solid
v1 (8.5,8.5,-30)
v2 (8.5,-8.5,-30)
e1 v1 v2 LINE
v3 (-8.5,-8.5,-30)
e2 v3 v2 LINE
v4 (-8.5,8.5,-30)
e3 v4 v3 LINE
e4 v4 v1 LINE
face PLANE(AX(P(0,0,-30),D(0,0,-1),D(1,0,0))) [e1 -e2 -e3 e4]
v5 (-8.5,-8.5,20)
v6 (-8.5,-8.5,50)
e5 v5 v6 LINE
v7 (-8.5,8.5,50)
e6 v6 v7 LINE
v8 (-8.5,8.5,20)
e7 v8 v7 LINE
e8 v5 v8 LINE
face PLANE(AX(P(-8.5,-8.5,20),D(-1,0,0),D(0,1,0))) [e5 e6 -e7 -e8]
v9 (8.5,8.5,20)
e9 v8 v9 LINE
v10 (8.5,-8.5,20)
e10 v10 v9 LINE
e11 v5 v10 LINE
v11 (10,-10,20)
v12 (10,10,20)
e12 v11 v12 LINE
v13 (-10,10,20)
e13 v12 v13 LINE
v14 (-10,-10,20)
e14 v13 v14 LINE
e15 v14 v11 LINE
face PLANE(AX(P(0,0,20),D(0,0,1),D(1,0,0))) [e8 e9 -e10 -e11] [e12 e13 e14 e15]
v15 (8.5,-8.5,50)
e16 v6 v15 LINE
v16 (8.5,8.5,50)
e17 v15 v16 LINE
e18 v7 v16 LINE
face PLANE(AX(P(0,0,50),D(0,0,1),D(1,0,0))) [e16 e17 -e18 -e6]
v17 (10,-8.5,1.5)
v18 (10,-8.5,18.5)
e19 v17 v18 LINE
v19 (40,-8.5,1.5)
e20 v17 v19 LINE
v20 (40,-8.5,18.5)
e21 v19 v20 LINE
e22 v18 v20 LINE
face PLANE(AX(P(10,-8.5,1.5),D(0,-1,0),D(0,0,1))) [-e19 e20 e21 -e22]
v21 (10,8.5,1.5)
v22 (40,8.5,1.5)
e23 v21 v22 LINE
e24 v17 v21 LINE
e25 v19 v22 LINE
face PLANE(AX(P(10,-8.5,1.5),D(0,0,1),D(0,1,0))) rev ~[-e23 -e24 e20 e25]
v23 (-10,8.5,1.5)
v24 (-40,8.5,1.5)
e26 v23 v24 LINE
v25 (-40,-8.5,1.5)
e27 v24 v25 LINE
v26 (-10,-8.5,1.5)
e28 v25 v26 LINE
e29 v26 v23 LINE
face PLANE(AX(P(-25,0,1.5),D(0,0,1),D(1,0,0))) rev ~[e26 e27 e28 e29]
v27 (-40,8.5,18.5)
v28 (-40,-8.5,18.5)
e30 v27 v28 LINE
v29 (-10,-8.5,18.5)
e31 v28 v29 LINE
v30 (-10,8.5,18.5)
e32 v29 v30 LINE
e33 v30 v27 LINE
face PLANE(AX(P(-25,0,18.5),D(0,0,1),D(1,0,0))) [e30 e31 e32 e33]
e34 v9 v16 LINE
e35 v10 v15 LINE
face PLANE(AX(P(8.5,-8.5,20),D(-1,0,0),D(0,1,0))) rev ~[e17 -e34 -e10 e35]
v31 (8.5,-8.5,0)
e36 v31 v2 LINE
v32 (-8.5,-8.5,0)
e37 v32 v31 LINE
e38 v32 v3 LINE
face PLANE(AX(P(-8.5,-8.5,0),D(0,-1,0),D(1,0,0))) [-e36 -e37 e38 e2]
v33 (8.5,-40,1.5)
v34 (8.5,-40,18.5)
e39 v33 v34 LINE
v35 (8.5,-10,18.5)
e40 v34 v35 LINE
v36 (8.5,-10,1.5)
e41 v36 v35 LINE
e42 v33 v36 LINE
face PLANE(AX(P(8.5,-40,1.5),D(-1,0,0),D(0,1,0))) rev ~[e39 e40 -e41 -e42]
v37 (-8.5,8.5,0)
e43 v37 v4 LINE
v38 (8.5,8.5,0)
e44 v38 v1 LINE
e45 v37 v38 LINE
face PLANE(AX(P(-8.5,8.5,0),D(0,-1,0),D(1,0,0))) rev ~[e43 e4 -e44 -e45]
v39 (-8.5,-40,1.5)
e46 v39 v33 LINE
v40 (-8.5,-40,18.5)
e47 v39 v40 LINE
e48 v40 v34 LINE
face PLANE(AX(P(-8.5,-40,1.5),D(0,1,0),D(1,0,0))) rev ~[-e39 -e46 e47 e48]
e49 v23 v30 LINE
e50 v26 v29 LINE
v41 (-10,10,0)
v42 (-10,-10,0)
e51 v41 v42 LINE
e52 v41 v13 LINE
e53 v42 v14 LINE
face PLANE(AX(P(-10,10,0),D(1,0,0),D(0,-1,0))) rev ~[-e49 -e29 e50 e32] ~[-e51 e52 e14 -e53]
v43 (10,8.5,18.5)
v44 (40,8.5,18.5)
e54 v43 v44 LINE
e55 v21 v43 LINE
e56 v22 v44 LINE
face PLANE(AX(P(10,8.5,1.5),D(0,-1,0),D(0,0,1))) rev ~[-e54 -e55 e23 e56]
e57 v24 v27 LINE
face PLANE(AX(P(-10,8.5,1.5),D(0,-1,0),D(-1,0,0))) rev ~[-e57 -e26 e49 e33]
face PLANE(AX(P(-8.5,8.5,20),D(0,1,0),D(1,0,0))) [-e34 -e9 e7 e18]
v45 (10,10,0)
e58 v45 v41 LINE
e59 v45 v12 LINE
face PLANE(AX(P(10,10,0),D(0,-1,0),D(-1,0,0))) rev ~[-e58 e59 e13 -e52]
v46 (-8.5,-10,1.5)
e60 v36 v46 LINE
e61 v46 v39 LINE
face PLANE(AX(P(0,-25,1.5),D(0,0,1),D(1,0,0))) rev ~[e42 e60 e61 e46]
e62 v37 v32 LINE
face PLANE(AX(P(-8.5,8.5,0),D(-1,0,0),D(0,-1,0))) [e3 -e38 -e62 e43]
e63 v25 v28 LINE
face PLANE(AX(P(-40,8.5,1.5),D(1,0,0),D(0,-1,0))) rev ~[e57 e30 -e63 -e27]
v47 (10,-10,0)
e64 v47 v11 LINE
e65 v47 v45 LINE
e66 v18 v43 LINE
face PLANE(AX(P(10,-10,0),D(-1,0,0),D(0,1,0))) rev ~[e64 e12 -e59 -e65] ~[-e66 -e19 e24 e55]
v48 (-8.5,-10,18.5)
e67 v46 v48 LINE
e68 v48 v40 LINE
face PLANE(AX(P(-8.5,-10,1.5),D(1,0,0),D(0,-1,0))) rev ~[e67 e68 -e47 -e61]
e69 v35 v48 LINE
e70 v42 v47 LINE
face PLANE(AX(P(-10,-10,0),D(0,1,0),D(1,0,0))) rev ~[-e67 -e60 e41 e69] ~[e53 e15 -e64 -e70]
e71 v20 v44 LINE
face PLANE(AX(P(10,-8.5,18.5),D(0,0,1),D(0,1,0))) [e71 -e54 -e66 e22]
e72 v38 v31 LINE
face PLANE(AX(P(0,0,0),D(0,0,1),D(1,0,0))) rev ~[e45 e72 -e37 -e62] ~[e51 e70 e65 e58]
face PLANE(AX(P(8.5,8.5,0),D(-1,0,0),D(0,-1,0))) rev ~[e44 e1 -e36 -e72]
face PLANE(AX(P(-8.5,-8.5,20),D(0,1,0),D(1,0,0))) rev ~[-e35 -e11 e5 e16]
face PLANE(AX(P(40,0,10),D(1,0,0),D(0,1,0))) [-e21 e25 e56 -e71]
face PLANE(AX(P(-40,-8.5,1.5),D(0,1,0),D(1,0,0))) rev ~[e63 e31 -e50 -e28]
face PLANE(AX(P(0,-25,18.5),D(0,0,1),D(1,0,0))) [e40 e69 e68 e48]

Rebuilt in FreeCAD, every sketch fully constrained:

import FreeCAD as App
import Part
import Sketcher
Q = App.Units.Quantity

doc = App.newDocument("Part")
body = doc.addObject("PartDesign::Body", "Body")

# Sketch on XY plane
sketch1 = body.newObject("Sketcher::SketchObject", "Sketch")
sketch1.AttachmentSupport = (doc.getObject("XY_Plane"), [""])
sketch1.MapMode = "FlatFace"
sketch1.addGeometry(Part.LineSegment(App.Vector(10, -10, 0), App.Vector(10, 10, 0)), False)
sketch1.addGeometry(Part.LineSegment(App.Vector(10, 10, 0), App.Vector(-10, 10, 0)), False)
sketch1.addGeometry(Part.LineSegment(App.Vector(-10, 10, 0), App.Vector(-10, -10, 0)), False)
sketch1.addGeometry(Part.LineSegment(App.Vector(-10, -10, 0), App.Vector(10, -10, 0)), False)
sketch1.addConstraint(Sketcher.Constraint("Coincident", 0, 2, 1, 1))
sketch1.addConstraint(Sketcher.Constraint("Coincident", 1, 2, 2, 1))
sketch1.addConstraint(Sketcher.Constraint("Coincident", 2, 2, 3, 1))
sketch1.addConstraint(Sketcher.Constraint("Coincident", 3, 2, 0, 1))
sketch1.addConstraint(Sketcher.Constraint("Vertical", 0))
sketch1.addConstraint(Sketcher.Constraint("Horizontal", 1))
sketch1.addConstraint(Sketcher.Constraint("Vertical", 2))
sketch1.addConstraint(Sketcher.Constraint("Horizontal", 3))
sketch1.addConstraint(Sketcher.Constraint("Symmetric", 0, 2, 2, 2, -1, 1))
sketch1.addConstraint(Sketcher.Constraint("Equal", 3, 0))
sketch1.addConstraint(Sketcher.Constraint("DistanceX", 1, 2, 1, 1, Q("20 mm")))
pad1 = body.newObject("PartDesign::Pad", "Pad")
pad1.Profile = sketch1
pad1.Length = 20

# Sketch on XY plane
sketch2 = body.newObject("Sketcher::SketchObject", "Sketch001")
sketch2.AttachmentSupport = (doc.getObject("XY_Plane"), [""])
sketch2.MapMode = "FlatFace"
sketch2.AttachmentOffset = App.Placement(App.Vector(0, 0, 1.5), App.Rotation())
sketch2.addGeometry(Part.LineSegment(App.Vector(-10, 8, 0), App.Vector(-40, 8, 0)), False)
sketch2.addGeometry(Part.LineSegment(App.Vector(-40, 8, 0), App.Vector(-40, -8, 0)), False)
sketch2.addGeometry(Part.LineSegment(App.Vector(-40, -8, 0), App.Vector(-10, -8, 0)), False)
sketch2.addGeometry(Part.LineSegment(App.Vector(-10, -8, 0), App.Vector(-10, 8, 0)), False)
sketch2.addGeometry(Part.LineSegment(App.Vector(8, -40, 0), App.Vector(8, -10, 0)), False)
sketch2.addGeometry(Part.LineSegment(App.Vector(8, -10, 0), App.Vector(-8, -10, 0)), False)
sketch2.addGeometry(Part.LineSegment(App.Vector(-8, -10, 0), App.Vector(-8, -40, 0)), False)
sketch2.addGeometry(Part.LineSegment(App.Vector(-8, -40, 0), App.Vector(8, -40, 0)), False)
sketch2.addConstraint(Sketcher.Constraint("Coincident", 0, 2, 1, 1))
sketch2.addConstraint(Sketcher.Constraint("Coincident", 1, 2, 2, 1))
sketch2.addConstraint(Sketcher.Constraint("Coincident", 2, 2, 3, 1))
sketch2.addConstraint(Sketcher.Constraint("Coincident", 3, 2, 0, 1))
sketch2.addConstraint(Sketcher.Constraint("Coincident", 4, 2, 5, 1))
sketch2.addConstraint(Sketcher.Constraint("Coincident", 5, 2, 6, 1))
sketch2.addConstraint(Sketcher.Constraint("Coincident", 6, 2, 7, 1))
sketch2.addConstraint(Sketcher.Constraint("Coincident", 7, 2, 4, 1))
sketch2.addConstraint(Sketcher.Constraint("Horizontal", 0))
sketch2.addConstraint(Sketcher.Constraint("Vertical", 1))
sketch2.addConstraint(Sketcher.Constraint("Horizontal", 2))
sketch2.addConstraint(Sketcher.Constraint("Vertical", 3))
sketch2.addConstraint(Sketcher.Constraint("Vertical", 4))
sketch2.addConstraint(Sketcher.Constraint("Horizontal", 5))
sketch2.addConstraint(Sketcher.Constraint("Vertical", 6))
sketch2.addConstraint(Sketcher.Constraint("Horizontal", 7))
sketch2.addConstraint(Sketcher.Constraint("Equal", 7, 1))
sketch2.addConstraint(Sketcher.Constraint("Equal", 2, 4))
sketch2.addConstraint(Sketcher.Constraint("DistanceX", 0, 2, 0, 1, Q("30 mm")))
sketch2.addConstraint(Sketcher.Constraint("DistanceX", 5, 2, 5, 1, Q("17 mm")))
sketch2.addConstraint(Sketcher.Constraint("DistanceX", 0, 2, -1, 1, Q("40 mm")))
sketch2.addConstraint(Sketcher.Constraint("DistanceY", 4, 2, -1, 1, Q("10 mm")))
sketch2.addConstraint(Sketcher.Constraint("DistanceY", -1, 1, 0, 2, Q("8.5 mm")))
sketch2.addConstraint(Sketcher.Constraint("DistanceX", -1, 1, 4, 2, Q("8.5 mm")))
pad2 = body.newObject("PartDesign::Pad", "Pad001")
pad2.Profile = sketch2
pad2.Length = 17

# Sketch on XY plane
sketch3 = body.newObject("Sketcher::SketchObject", "Sketch002")
sketch3.AttachmentSupport = (doc.getObject("XY_Plane"), [""])
sketch3.MapMode = "FlatFace"
sketch3.AttachmentOffset = App.Placement(App.Vector(0, 0, 20), App.Rotation())
sketch3.addGeometry(Part.LineSegment(App.Vector(-8, 8, 0), App.Vector(-8, -8, 0)), False)
sketch3.addGeometry(Part.LineSegment(App.Vector(-8, -8, 0), App.Vector(8, -8, 0)), False)
sketch3.addGeometry(Part.LineSegment(App.Vector(8, -8, 0), App.Vector(8, 8, 0)), False)
sketch3.addGeometry(Part.LineSegment(App.Vector(8, 8, 0), App.Vector(-8, 8, 0)), False)
sketch3.addConstraint(Sketcher.Constraint("Coincident", 0, 2, 1, 1))
sketch3.addConstraint(Sketcher.Constraint("Coincident", 1, 2, 2, 1))
sketch3.addConstraint(Sketcher.Constraint("Coincident", 2, 2, 3, 1))
sketch3.addConstraint(Sketcher.Constraint("Coincident", 3, 2, 0, 1))
sketch3.addConstraint(Sketcher.Constraint("Vertical", 0))
sketch3.addConstraint(Sketcher.Constraint("Horizontal", 1))
sketch3.addConstraint(Sketcher.Constraint("Vertical", 2))
sketch3.addConstraint(Sketcher.Constraint("Horizontal", 3))
sketch3.addConstraint(Sketcher.Constraint("Symmetric", 0, 2, 2, 2, -1, 1))
sketch3.addConstraint(Sketcher.Constraint("Equal", 3, 0))
sketch3.addConstraint(Sketcher.Constraint("DistanceX", 1, 1, 1, 2, Q("17 mm")))
pad3 = body.newObject("PartDesign::Pad", "Pad002")
pad3.Profile = sketch3
pad3.Length = 30

# Sketch on XY plane
sketch4 = body.newObject("Sketcher::SketchObject", "Sketch003")
sketch4.AttachmentSupport = (doc.getObject("XY_Plane"), [""])
sketch4.MapMode = "FlatFace"
sketch4.addGeometry(Part.LineSegment(App.Vector(-8, -8, 0), App.Vector(-8, 8, 0)), False)
sketch4.addGeometry(Part.LineSegment(App.Vector(-8, 8, 0), App.Vector(8, 8, 0)), False)
sketch4.addGeometry(Part.LineSegment(App.Vector(8, 8, 0), App.Vector(8, -8, 0)), False)
sketch4.addGeometry(Part.LineSegment(App.Vector(8, -8, 0), App.Vector(-8, -8, 0)), False)
sketch4.addConstraint(Sketcher.Constraint("Coincident", 0, 2, 1, 1))
sketch4.addConstraint(Sketcher.Constraint("Coincident", 1, 2, 2, 1))
sketch4.addConstraint(Sketcher.Constraint("Coincident", 2, 2, 3, 1))
sketch4.addConstraint(Sketcher.Constraint("Coincident", 3, 2, 0, 1))
sketch4.addConstraint(Sketcher.Constraint("Vertical", 0))
sketch4.addConstraint(Sketcher.Constraint("Horizontal", 1))
sketch4.addConstraint(Sketcher.Constraint("Vertical", 2))
sketch4.addConstraint(Sketcher.Constraint("Horizontal", 3))
sketch4.addConstraint(Sketcher.Constraint("Symmetric", 0, 2, 2, 2, -1, 1))
sketch4.addConstraint(Sketcher.Constraint("Equal", 3, 0))
sketch4.addConstraint(Sketcher.Constraint("DistanceX", 1, 1, 1, 2, Q("17 mm")))
pad4 = body.newObject("PartDesign::Pad", "Pad003")
pad4.Profile = sketch4
pad4.Length = 30
pad4.Reversed = True

# Sketch on YZ plane
sketch5 = body.newObject("Sketcher::SketchObject", "Sketch004")
sketch5.AttachmentSupport = (doc.getObject("YZ_Plane"), [""])
sketch5.MapMode = "FlatFace"
sketch5.AttachmentOffset = App.Placement(App.Vector(0, 0, 10), App.Rotation())
sketch5.addGeometry(Part.LineSegment(App.Vector(-8, 18, 0), App.Vector(-8, 2, 0)), False)
sketch5.addGeometry(Part.LineSegment(App.Vector(-8, 2, 0), App.Vector(8, 2, 0)), False)
sketch5.addGeometry(Part.LineSegment(App.Vector(8, 2, 0), App.Vector(8, 18, 0)), False)
sketch5.addGeometry(Part.LineSegment(App.Vector(8, 18, 0), App.Vector(-8, 18, 0)), False)
sketch5.addConstraint(Sketcher.Constraint("Coincident", 0, 2, 1, 1))
sketch5.addConstraint(Sketcher.Constraint("Coincident", 1, 2, 2, 1))
sketch5.addConstraint(Sketcher.Constraint("Coincident", 2, 2, 3, 1))
sketch5.addConstraint(Sketcher.Constraint("Coincident", 3, 2, 0, 1))
sketch5.addConstraint(Sketcher.Constraint("Vertical", 0))
sketch5.addConstraint(Sketcher.Constraint("Horizontal", 1))
sketch5.addConstraint(Sketcher.Constraint("Vertical", 2))
sketch5.addConstraint(Sketcher.Constraint("Horizontal", 3))
sketch5.addConstraint(Sketcher.Constraint("Equal", 3, 0))
sketch5.addConstraint(Sketcher.Constraint("DistanceX", 1, 1, 1, 2, Q("17 mm")))
sketch5.addConstraint(Sketcher.Constraint("DistanceX", 0, 2, -1, 1, Q("8.5 mm")))
sketch5.addConstraint(Sketcher.Constraint("DistanceY", -1, 1, 0, 2, Q("1.5 mm")))
pad5 = body.newObject("PartDesign::Pad", "Pad004")
pad5.Profile = sketch5
pad5.Length = 30

doc.recompute()
